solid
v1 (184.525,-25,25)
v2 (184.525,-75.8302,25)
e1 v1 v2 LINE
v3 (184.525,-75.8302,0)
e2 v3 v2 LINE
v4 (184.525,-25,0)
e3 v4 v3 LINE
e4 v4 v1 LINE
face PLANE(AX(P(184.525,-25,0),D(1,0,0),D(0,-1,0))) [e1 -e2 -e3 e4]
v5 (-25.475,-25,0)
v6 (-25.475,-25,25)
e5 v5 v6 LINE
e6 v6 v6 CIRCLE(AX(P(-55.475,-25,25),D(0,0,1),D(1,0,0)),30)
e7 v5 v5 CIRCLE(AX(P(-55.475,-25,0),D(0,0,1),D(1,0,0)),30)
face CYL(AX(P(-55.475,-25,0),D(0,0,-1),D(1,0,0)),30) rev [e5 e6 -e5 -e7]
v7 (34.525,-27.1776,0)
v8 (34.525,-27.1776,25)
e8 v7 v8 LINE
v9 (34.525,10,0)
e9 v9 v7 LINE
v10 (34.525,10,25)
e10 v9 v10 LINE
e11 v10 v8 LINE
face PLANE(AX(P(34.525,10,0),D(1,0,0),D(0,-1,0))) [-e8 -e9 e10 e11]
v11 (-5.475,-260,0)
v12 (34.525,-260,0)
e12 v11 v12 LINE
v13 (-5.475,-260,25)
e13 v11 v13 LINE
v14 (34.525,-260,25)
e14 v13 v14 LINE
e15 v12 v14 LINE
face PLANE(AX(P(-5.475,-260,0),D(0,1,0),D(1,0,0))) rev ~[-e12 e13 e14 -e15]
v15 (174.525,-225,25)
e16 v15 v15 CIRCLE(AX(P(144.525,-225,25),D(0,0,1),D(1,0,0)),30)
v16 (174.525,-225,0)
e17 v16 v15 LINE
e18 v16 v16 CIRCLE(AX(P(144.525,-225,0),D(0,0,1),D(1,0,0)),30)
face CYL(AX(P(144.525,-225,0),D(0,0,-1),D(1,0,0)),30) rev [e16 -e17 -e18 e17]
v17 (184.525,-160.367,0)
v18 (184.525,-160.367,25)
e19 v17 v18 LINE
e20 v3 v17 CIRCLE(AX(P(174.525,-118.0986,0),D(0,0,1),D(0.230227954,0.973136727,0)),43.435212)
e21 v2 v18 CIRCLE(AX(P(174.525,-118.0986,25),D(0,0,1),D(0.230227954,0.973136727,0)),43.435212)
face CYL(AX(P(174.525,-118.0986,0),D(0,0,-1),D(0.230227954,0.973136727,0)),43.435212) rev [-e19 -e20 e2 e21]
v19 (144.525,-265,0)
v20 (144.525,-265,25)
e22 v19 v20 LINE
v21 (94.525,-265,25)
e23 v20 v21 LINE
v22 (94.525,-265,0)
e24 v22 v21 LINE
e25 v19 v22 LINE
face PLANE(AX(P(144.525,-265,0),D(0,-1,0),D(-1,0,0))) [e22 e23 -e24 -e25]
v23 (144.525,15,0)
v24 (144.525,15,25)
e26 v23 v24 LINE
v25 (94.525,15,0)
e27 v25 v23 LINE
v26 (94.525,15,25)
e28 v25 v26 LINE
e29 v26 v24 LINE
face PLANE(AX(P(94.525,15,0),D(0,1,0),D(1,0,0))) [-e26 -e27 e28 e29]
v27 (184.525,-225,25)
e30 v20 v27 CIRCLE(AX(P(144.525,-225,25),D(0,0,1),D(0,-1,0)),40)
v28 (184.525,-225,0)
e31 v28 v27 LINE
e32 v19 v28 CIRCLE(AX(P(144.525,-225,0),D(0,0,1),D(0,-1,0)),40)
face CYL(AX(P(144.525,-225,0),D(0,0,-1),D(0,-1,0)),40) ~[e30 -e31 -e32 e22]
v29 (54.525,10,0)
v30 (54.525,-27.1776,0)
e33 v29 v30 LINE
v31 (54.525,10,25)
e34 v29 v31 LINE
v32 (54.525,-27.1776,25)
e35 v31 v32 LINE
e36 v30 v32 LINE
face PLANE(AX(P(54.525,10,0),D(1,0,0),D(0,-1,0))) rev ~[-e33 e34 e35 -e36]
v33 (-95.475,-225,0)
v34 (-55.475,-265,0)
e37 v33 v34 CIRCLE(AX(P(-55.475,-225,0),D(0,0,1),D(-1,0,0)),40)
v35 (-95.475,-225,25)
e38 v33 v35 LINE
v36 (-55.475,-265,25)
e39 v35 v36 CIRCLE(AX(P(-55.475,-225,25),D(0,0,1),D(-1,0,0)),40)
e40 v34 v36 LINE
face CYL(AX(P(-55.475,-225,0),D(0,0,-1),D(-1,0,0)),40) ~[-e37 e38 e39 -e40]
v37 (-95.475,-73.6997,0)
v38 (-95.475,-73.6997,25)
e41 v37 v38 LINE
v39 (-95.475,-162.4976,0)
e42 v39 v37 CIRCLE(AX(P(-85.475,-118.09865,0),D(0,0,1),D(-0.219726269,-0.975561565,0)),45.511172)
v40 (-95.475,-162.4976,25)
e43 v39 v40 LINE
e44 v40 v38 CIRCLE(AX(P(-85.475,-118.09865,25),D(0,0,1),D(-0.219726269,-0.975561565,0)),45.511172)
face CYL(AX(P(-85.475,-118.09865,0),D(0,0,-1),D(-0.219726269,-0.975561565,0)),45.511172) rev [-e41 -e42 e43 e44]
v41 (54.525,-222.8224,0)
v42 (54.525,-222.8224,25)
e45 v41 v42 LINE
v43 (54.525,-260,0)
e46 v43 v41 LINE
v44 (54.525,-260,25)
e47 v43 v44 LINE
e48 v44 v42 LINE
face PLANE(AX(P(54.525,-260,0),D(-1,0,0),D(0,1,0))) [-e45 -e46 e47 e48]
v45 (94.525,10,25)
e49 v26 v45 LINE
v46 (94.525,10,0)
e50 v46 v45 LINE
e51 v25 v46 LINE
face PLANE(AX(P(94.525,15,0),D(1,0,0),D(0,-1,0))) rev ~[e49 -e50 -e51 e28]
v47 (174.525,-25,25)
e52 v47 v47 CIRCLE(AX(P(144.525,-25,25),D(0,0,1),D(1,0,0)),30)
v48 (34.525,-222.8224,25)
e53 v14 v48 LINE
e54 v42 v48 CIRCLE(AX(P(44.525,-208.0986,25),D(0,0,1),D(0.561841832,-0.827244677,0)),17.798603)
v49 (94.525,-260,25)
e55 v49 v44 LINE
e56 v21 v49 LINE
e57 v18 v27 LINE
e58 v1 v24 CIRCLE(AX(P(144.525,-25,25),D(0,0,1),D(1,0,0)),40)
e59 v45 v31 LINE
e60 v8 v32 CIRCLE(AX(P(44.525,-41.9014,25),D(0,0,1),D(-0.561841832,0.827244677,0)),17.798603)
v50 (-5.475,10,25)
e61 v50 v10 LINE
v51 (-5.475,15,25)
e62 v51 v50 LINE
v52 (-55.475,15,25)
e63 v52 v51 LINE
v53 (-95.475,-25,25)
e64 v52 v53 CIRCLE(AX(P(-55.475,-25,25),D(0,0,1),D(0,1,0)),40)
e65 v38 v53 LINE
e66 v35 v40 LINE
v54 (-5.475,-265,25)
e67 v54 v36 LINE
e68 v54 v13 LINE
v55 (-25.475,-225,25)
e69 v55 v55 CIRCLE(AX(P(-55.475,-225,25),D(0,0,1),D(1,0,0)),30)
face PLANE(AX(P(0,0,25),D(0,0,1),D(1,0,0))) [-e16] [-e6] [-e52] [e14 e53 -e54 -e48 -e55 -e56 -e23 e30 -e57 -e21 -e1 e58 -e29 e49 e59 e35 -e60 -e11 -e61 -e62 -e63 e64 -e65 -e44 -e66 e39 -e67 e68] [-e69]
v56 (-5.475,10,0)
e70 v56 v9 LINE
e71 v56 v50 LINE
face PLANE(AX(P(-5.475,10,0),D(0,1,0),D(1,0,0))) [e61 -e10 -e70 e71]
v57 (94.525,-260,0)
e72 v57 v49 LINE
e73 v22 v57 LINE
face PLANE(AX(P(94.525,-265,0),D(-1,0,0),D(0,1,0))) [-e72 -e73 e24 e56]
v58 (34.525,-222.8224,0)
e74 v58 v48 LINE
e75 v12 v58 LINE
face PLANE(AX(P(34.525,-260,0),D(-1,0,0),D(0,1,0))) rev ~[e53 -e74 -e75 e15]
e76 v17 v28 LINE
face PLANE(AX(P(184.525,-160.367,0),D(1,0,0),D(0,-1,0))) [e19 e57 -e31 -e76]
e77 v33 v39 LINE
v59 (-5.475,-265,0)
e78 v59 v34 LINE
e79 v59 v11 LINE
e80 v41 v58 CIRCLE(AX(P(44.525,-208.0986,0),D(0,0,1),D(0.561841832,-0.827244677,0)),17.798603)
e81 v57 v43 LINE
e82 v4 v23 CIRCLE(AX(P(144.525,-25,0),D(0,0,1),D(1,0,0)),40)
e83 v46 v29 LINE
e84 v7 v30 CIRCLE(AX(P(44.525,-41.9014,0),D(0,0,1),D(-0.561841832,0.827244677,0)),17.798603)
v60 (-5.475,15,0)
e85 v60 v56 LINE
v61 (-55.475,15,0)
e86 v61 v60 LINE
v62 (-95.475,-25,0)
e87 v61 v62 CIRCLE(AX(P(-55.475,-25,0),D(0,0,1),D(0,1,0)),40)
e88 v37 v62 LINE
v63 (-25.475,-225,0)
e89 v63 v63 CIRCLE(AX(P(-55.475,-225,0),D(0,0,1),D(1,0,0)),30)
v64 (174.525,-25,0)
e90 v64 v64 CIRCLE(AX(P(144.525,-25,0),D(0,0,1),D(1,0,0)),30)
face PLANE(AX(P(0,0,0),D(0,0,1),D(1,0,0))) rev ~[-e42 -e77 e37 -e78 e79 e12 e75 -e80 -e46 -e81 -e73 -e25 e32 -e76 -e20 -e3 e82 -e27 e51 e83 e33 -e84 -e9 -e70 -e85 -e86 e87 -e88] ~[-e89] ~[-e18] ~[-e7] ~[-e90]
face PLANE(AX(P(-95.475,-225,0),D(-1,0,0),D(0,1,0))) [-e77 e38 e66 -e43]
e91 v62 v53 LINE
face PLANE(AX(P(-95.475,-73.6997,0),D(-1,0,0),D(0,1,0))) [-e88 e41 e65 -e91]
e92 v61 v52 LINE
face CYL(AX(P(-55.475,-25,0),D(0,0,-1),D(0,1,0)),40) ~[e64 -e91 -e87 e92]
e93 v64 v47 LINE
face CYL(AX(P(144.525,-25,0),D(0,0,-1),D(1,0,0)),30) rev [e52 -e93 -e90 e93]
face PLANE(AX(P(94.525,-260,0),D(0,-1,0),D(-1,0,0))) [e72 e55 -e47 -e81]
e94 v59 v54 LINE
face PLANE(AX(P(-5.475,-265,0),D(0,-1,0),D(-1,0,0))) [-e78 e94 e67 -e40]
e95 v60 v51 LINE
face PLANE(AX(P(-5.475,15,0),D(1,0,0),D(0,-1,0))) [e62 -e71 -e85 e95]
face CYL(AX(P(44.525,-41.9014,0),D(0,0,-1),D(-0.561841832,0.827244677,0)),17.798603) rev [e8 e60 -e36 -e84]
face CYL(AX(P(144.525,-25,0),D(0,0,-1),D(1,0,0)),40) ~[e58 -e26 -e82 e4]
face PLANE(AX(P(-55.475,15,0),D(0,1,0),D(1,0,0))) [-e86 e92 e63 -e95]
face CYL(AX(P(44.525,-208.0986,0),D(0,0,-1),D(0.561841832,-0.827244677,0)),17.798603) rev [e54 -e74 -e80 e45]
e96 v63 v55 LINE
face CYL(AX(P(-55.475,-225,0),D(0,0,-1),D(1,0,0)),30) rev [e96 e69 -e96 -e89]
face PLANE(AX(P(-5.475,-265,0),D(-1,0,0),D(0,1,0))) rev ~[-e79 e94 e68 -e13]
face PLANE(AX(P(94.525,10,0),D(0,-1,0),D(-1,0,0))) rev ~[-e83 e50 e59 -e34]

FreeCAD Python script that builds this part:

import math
import FreeCAD as App
import Part
import Sketcher
from FreeCAD import Vector
Q = App.Units.Quantity

doc = App.newDocument("Part")
params = doc.addObject("Spreadsheet::Sheet", "Params")
for row, (alias, value) in enumerate([
    ("sketch1_diameter", "60 mm"),
    ("sketch1_radius", "40 mm"),
    ("sketch1_width", "50 mm"),
    ("sketch1_width2", "40 mm"),
    ("sketch1_height", "5 mm"),
    ("pad1_length", "25 mm"),
], start=1):
    params.set(f"A{row}", alias)
    params.set(f"B{row}", "=" + value)
    params.setAlias(f"B{row}", alias)

body = doc.addObject("PartDesign::Body", "Body")

# Sketch on XY plane
sketch1 = body.newObject("Sketcher::SketchObject", "Sketch")
sketch1.AttachmentSupport = (doc.getObject("XY_Plane"), [""])
sketch1.MapMode = "FlatFace"
sketch1.addGeometry(Part.LineSegment(Vector(-5.475, 15, 0), Vector(-55.475, 15, 0)), False)
sketch1.addGeometry(Part.ArcOfCircle(Part.Circle(Vector(-55.475, -25, 0), Vector(0, 0, 1), 40), math.radians(90), math.radians(180)), False)
sketch1.addGeometry(Part.LineSegment(Vector(-95.475, -25, 0), Vector(-95.475, -73.6997, 0)), False)
sketch1.addGeometry(Part.ArcOfCircle(Part.Circle(Vector(-85.475, -118.0986, 0), Vector(0, 0, 1), 45.511221), math.radians(-102.692942), math.radians(102.69297)), False)
sketch1.addGeometry(Part.LineSegment(Vector(-95.475, -162.4976, 0), Vector(-95.475, -225, 0)), False)
sketch1.addGeometry(Part.ArcOfCircle(Part.Circle(Vector(-55.475, -225, 0), Vector(0, 0, 1), 40), math.radians(180), math.radians(270)), False)
sketch1.addGeometry(Part.LineSegment(Vector(-55.475, -265, 0), Vector(-5.475, -265, 0)), False)
sketch1.addGeometry(Part.LineSegment(Vector(-5.475, -265, 0), Vector(-5.475, -260, 0)), False)
sketch1.addGeometry(Part.LineSegment(Vector(-5.475, -260, 0), Vector(34.525, -260, 0)), False)
sketch1.addGeometry(Part.LineSegment(Vector(34.525, -260, 0), Vector(34.525, -222.8224, 0)), False)
sketch1.addGeometry(Part.ArcOfCircle(Part.Circle(Vector(44.525, -208.0986, 0), Vector(0, 0, 1), 17.798603), math.radians(-55.816731), math.radians(235.816731)), False)
sketch1.addGeometry(Part.LineSegment(Vector(54.525, -222.8224, 0), Vector(54.525, -260, 0)), False)
sketch1.addGeometry(Part.LineSegment(Vector(54.525, -260, 0), Vector(94.525, -260, 0)), False)
sketch1.addGeometry(Part.LineSegment(Vector(94.525, -260, 0), Vector(94.525, -265, 0)), False)
sketch1.addGeometry(Part.LineSegment(Vector(94.525, -265, 0), Vector(144.525, -265, 0)), False)
sketch1.addGeometry(Part.ArcOfCircle(Part.Circle(Vector(144.525, -225, 0), Vector(0, 0, 1), 40), math.radians(-90), math.radians(0)), False)
sketch1.addGeometry(Part.LineSegment(Vector(184.525, -225, 0), Vector(184.525, -160.367, 0)), False)
sketch1.addGeometry(Part.ArcOfCircle(Part.Circle(Vector(174.525, -118.0986, 0), Vector(0, 0, 1), 43.435212), math.radians(76.689507), math.radians(283.310493)), False)
sketch1.addGeometry(Part.LineSegment(Vector(184.525, -75.8302, 0), Vector(184.525, -25, 0)), False)
sketch1.addGeometry(Part.ArcOfCircle(Part.Circle(Vector(144.525, -25, 0), Vector(0, 0, 1), 40), math.radians(0), math.radians(90)), False)
sketch1.addGeometry(Part.LineSegment(Vector(144.525, 15, 0), Vector(94.525, 15, 0)), False)
sketch1.addGeometry(Part.LineSegment(Vector(94.525, 15, 0), Vector(94.525, 10, 0)), False)
sketch1.addGeometry(Part.LineSegment(Vector(94.525, 10, 0), Vector(54.525, 10, 0)), False)
sketch1.addGeometry(Part.LineSegment(Vector(54.525, 10, 0), Vector(54.525, -27.1776, 0)), False)
sketch1.addGeometry(Part.ArcOfCircle(Part.Circle(Vector(44.525, -41.9014, 0), Vector(0, 0, 1), 17.798603), math.radians(124.183269), math.radians(415.816731)), False)
sketch1.addGeometry(Part.LineSegment(Vector(34.525, -27.1776, 0), Vector(34.525, 10, 0)), False)
sketch1.addGeometry(Part.LineSegment(Vector(34.525, 10, 0), Vector(-5.475, 10, 0)), False)
sketch1.addGeometry(Part.LineSegment(Vector(-5.475, 10, 0), Vector(-5.475, 15, 0)), False)
sketch1.addGeometry(Part.Circle(Vector(-55.475, -225, 0), Vector(0, 0, 1), 30), False)
sketch1.addGeometry(Part.Circle(Vector(144.525, -225, 0), Vector(0, 0, 1), 30), False)
sketch1.addGeometry(Part.Circle(Vector(-55.475, -25, 0), Vector(0, 0, 1), 30), False)
sketch1.addGeometry(Part.Circle(Vector(144.525, -25, 0), Vector(0, 0, 1), 30), False)
sketch1.addConstraint(Sketcher.Constraint("Tangent", 0, 2, 1, 1))
sketch1.addConstraint(Sketcher.Constraint("Tangent", 1, 2, 2, 1))
sketch1.addConstraint(Sketcher.Constraint("Coincident", 2, 2, 3, 2))
sketch1.addConstraint(Sketcher.Constraint("Coincident", 3, 1, 4, 1))
sketch1.addConstraint(Sketcher.Constraint("Tangent", 4, 2, 5, 1))
sketch1.addConstraint(Sketcher.Constraint("Tangent", 5, 2, 6, 1))
sketch1.addConstraint(Sketcher.Constraint("Coincident", 6, 2, 7, 1))
sketch1.addConstraint(Sketcher.Constraint("Coincident", 7, 2, 8, 1))
sketch1.addConstraint(Sketcher.Constraint("Coincident", 8, 2, 9, 1))
sketch1.addConstraint(Sketcher.Constraint("Coincident", 9, 2, 10, 2))
sketch1.addConstraint(Sketcher.Constraint("Coincident", 10, 1, 11, 1))
sketch1.addConstraint(Sketcher.Constraint("Coincident", 11, 2, 12, 1))
sketch1.addConstraint(Sketcher.Constraint("Coincident", 12, 2, 13, 1))
sketch1.addConstraint(Sketcher.Constraint("Coincident", 13, 2, 14, 1))
sketch1.addConstraint(Sketcher.Constraint("Tangent", 14, 2, 15, 1))
sketch1.addConstraint(Sketcher.Constraint("Tangent", 15, 2, 16, 1))
sketch1.addConstraint(Sketcher.Constraint("Coincident", 16, 2, 17, 2))
sketch1.addConstraint(Sketcher.Constraint("Coincident", 17, 1, 18, 1))
sketch1.addConstraint(Sketcher.Constraint("Tangent", 18, 2, 19, 1))
sketch1.addConstraint(Sketcher.Constraint("Tangent", 19, 2, 20, 1))
sketch1.addConstraint(Sketcher.Constraint("Coincident", 20, 2, 21, 1))
sketch1.addConstraint(Sketcher.Constraint("Coincident", 21, 2, 22, 1))
sketch1.addConstraint(Sketcher.Constraint("Coincident", 22, 2, 23, 1))
sketch1.addConstraint(Sketcher.Constraint("Coincident", 23, 2, 24, 2))
sketch1.addConstraint(Sketcher.Constraint("Coincident", 24, 1, 25, 1))
sketch1.addConstraint(Sketcher.Constraint("Coincident", 25, 2, 26, 1))
sketch1.addConstraint(Sketcher.Constraint("Coincident", 26, 2, 27, 1))
sketch1.addConstraint(Sketcher.Constraint("Coincident", 27, 2, 0, 1))
sketch1.addConstraint(Sketcher.Constraint("Horizontal", 0))
sketch1.addConstraint(Sketcher.Constraint("Vertical", 2))
sketch1.addConstraint(Sketcher.Constraint("Vertical", 4))
sketch1.addConstraint(Sketcher.Constraint("Horizontal", 6))
sketch1.addConstraint(Sketcher.Constraint("Vertical", 7))
sketch1.addConstraint(Sketcher.Constraint("Horizontal", 8))
sketch1.addConstraint(Sketcher.Constraint("Vertical", 9))
sketch1.addConstraint(Sketcher.Constraint("Vertical", 11))
sketch1.addConstraint(Sketcher.Constraint("Horizontal", 12))
sketch1.addConstraint(Sketcher.Constraint("Vertical", 13))
sketch1.addConstraint(Sketcher.Constraint("Horizontal", 14))
sketch1.addConstraint(Sketcher.Constraint("Vertical", 16))
sketch1.addConstraint(Sketcher.Constraint("Vertical", 18))
sketch1.addConstraint(Sketcher.Constraint("Horizontal", 20))
sketch1.addConstraint(Sketcher.Constraint("Vertical", 21))
sketch1.addConstraint(Sketcher.Constraint("Horizontal", 22))
sketch1.addConstraint(Sketcher.Constraint("Vertical", 23))
sketch1.addConstraint(Sketcher.Constraint("Vertical", 25))
sketch1.addConstraint(Sketcher.Constraint("Horizontal", 26))
sketch1.addConstraint(Sketcher.Constraint("Vertical", 27))
sketch1.addConstraint(Sketcher.Constraint("Coincident", 28, 3, 5, 3))
sketch1.addConstraint(Sketcher.Constraint("Coincident", 29, 3, 15, 3))
sketch1.addConstraint(Sketcher.Constraint("Coincident", 30, 3, 1, 3))
sketch1.addConstraint(Sketcher.Constraint("Coincident", 31, 3, 19, 3))
sketch1.addConstraint(Sketcher.Constraint("Equal", 1, 5))
sketch1.addConstraint(Sketcher.Constraint("Equal", 5, 15))
sketch1.addConstraint(Sketcher.Constraint("Equal", 15, 19))
sketch1.addConstraint(Sketcher.Constraint("Equal", 10, 24))
sketch1.addConstraint(Sketcher.Constraint("Equal", 28, 29))
sketch1.addConstraint(Sketcher.Constraint("Equal", 29, 30))
sketch1.addConstraint(Sketcher.Constraint("Equal", 30, 31))
sketch1.addConstraint(Sketcher.Constraint("Horizontal", 5, 3, 15, 3))
sketch1.addConstraint(Sketcher.Constraint("Horizontal", 3, 3, 17, 3))
sketch1.addConstraint(Sketcher.Constraint("Horizontal", 1, 3, 19, 3))
sketch1.addConstraint(Sketcher.Constraint("Horizontal", 9, 2, 10, 1))
sketch1.addConstraint(Sketcher.Constraint("Horizontal", 8, 2, 11, 2))
sketch1.addConstraint(Sketcher.Constraint("Horizontal", 23, 2, 24, 1))
sketch1.addConstraint(Sketcher.Constraint("Horizontal", 22, 2, 25, 2))
sketch1.addConstraint(Sketcher.Constraint("Vertical", 1, 3, 5, 3))
sketch1.addConstraint(Sketcher.Constraint("Vertical", 15, 3, 19, 3))
sketch1.addConstraint(Sketcher.Constraint("Vertical", 10, 3, 24, 3))
sketch1.addConstraint(Sketcher.Constraint("Vertical", 13, 2, 20, 2))
sketch1.addConstraint(Sketcher.Constraint("Vertical", 11, 2, 22, 2))
sketch1.addConstraint(Sketcher.Constraint("Vertical", 7, 2, 26, 2))
sketch1.addConstraint(Sketcher.Constraint("Equal", 8, 12))
sketch1.addConstraint(Sketcher.Constraint("Equal", 6, 14))
sketch1.addConstraint(Sketcher.Constraint("Equal", 13, 21))
sketch1.addConstraint(Sketcher.Constraint("Equal", 11, 23))
sketch1.addConstraint(Sketcher.Constraint("Diameter", 28, Q("60 mm")))
sketch1.addConstraint(Sketcher.Constraint("Radius", 1, Q("40 mm")))
sketch1.addConstraint(Sketcher.Constraint("DistanceX", 0, 2, 0, 1, Q("50 mm")))
sketch1.addConstraint(Sketcher.Constraint("DistanceX", 8, 1, 8, 2, Q("40 mm")))
sketch1.addConstraint(Sketcher.Constraint("DistanceY", 7, 1, 7, 2, Q("5 mm")))
sketch1.addConstraint(Sketcher.Constraint("DistanceY", 7, 2, -1, 1, Q("260 mm")))
sketch1.addConstraint(Sketcher.Constraint("DistanceY", 5, 3, 1, 3, Q("200 mm")))
sketch1.addConstraint(Sketcher.Constraint("DistanceX", 5, 3, 10, 3, Q("100 mm")))
sketch1.addConstraint(Sketcher.Constraint("DistanceX", 3, 3, 17, 3, Q("260 mm")))
sketch1.addConstraint(Sketcher.Constraint("DistanceX", 3, 3, 1, 3, Q("30 mm")))
sketch1.addConstraint(Sketcher.Constraint("DistanceY", 10, 3, 3, 3, Q("90 mm")))
sketch1.addConstraint(Sketcher.Constraint("Radius", 3, Q("45.5112 mm")))
sketch1.addConstraint(Sketcher.Constraint("Radius", 10, Q("17.7986 mm")))
sketch1.addConstraint(Sketcher.Constraint("Radius", 17, Q("43.4352 mm")))
sketch1.addConstraint(Sketcher.Constraint("DistanceY", 16, 1, 16, 2, Q("64.633 mm")))
sketch1.addConstraint(Sketcher.Constraint("DistanceX", 1, 3, -1, 1, Q("55.475 mm")))
sketch1.setExpression("Constraints[76]", "Params.sketch1_diameter")
sketch1.setExpression("Constraints[77]", "Params.sketch1_radius")
sketch1.setExpression("Constraints[78]", "Params.sketch1_width")
sketch1.setExpression("Constraints[79]", "Params.sketch1_width2")
sketch1.setExpression("Constraints[80]", "Params.sketch1_height")
pad1 = body.newObject("PartDesign::Pad", "Pad")
pad1.Profile = sketch1
pad1.setExpression("Length", "Params.pad1_length")

doc.recompute()
